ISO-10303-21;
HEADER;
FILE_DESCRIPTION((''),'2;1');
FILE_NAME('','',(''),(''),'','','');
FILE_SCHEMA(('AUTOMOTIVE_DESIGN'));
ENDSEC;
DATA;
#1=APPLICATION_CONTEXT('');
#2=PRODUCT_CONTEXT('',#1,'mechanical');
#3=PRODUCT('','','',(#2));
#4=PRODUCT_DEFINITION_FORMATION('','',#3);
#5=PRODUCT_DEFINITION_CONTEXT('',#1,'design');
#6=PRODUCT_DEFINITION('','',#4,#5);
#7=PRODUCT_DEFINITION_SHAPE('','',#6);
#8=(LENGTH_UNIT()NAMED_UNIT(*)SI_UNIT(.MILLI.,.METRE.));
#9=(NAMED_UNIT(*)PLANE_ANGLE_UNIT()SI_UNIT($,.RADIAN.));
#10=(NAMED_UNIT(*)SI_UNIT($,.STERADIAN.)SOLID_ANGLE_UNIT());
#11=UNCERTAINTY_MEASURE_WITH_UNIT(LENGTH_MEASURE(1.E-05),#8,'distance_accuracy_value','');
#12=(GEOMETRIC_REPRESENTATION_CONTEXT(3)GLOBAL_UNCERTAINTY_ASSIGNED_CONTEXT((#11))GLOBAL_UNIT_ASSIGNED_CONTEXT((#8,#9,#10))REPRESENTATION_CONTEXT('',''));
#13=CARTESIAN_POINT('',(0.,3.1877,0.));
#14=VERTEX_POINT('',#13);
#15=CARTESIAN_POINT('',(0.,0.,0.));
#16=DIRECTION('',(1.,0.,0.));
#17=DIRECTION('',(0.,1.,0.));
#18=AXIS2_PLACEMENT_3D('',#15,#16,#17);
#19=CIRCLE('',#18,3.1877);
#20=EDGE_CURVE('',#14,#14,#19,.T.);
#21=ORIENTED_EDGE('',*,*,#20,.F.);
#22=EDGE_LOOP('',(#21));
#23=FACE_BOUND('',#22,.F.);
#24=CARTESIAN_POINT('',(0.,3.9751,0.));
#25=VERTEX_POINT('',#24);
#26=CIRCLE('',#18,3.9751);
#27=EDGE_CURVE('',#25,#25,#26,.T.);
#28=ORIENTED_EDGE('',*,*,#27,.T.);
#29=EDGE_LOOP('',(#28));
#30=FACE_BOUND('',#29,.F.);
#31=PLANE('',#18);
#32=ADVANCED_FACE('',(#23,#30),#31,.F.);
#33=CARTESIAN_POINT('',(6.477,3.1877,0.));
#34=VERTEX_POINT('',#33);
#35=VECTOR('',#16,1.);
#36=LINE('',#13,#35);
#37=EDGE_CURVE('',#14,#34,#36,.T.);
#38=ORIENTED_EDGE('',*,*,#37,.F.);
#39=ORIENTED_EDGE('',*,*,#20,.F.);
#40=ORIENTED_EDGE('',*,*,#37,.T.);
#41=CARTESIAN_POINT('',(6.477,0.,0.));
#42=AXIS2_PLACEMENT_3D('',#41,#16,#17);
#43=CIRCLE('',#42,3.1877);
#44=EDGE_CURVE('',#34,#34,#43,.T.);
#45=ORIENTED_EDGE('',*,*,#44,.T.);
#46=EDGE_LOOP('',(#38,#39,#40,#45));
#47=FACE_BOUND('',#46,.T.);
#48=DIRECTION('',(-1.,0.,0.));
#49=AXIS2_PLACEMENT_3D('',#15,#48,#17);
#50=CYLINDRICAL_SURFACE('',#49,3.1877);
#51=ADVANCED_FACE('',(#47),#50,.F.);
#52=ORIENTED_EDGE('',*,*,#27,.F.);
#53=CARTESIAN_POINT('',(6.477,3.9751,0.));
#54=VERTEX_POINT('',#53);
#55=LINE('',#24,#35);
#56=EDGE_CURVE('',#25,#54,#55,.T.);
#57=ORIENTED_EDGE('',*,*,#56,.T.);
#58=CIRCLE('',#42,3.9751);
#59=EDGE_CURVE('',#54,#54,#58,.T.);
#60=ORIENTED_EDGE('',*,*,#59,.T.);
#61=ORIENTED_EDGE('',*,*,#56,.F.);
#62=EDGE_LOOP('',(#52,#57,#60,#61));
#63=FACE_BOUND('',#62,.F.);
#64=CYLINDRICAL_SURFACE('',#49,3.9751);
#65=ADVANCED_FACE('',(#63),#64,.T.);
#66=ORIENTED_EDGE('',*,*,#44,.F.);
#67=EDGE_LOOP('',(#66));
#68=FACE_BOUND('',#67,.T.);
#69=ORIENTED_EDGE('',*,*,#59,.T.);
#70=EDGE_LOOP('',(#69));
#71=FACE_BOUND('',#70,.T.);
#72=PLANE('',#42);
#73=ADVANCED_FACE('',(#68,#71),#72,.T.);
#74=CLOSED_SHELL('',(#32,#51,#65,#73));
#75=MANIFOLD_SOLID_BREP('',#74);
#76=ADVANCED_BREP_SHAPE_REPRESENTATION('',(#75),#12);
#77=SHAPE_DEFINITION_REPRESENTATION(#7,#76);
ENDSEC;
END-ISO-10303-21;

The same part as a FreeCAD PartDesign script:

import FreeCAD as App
import Part
import Sketcher

V = App.Vector
Q = App.Units.Quantity

doc = App.newDocument("Part")
body = doc.addObject("PartDesign::Body", "Body")

# Sketch on YZ plane
sketch1 = body.newObject("Sketcher::SketchObject", "Sketch")
sketch1.AttachmentSupport = (doc.getObject("YZ_Plane"), [""])
sketch1.MapMode = "FlatFace"
sketch1.addGeometry(Part.Circle(V(0, 0, 0), V(0, 0, 1), 4), False)
sketch1.addGeometry(Part.Circle(V(0, 0, 0), V(0, 0, 1), 3.2), False)
sketch1.addConstraint(Sketcher.Constraint("Coincident", 0, 3, -1, 1))
sketch1.addConstraint(Sketcher.Constraint("Coincident", 1, 3, -1, 1))
sketch1.addConstraint(Sketcher.Constraint("Diameter", 0, Q("0.313 in")))
sketch1.addConstraint(Sketcher.Constraint("Diameter", 1, Q("0.251 in")))
pad1 = body.newObject("PartDesign::Pad", "Pad")
pad1.Profile = sketch1
pad1.Length = Q("0.255 in")

doc.recompute()
